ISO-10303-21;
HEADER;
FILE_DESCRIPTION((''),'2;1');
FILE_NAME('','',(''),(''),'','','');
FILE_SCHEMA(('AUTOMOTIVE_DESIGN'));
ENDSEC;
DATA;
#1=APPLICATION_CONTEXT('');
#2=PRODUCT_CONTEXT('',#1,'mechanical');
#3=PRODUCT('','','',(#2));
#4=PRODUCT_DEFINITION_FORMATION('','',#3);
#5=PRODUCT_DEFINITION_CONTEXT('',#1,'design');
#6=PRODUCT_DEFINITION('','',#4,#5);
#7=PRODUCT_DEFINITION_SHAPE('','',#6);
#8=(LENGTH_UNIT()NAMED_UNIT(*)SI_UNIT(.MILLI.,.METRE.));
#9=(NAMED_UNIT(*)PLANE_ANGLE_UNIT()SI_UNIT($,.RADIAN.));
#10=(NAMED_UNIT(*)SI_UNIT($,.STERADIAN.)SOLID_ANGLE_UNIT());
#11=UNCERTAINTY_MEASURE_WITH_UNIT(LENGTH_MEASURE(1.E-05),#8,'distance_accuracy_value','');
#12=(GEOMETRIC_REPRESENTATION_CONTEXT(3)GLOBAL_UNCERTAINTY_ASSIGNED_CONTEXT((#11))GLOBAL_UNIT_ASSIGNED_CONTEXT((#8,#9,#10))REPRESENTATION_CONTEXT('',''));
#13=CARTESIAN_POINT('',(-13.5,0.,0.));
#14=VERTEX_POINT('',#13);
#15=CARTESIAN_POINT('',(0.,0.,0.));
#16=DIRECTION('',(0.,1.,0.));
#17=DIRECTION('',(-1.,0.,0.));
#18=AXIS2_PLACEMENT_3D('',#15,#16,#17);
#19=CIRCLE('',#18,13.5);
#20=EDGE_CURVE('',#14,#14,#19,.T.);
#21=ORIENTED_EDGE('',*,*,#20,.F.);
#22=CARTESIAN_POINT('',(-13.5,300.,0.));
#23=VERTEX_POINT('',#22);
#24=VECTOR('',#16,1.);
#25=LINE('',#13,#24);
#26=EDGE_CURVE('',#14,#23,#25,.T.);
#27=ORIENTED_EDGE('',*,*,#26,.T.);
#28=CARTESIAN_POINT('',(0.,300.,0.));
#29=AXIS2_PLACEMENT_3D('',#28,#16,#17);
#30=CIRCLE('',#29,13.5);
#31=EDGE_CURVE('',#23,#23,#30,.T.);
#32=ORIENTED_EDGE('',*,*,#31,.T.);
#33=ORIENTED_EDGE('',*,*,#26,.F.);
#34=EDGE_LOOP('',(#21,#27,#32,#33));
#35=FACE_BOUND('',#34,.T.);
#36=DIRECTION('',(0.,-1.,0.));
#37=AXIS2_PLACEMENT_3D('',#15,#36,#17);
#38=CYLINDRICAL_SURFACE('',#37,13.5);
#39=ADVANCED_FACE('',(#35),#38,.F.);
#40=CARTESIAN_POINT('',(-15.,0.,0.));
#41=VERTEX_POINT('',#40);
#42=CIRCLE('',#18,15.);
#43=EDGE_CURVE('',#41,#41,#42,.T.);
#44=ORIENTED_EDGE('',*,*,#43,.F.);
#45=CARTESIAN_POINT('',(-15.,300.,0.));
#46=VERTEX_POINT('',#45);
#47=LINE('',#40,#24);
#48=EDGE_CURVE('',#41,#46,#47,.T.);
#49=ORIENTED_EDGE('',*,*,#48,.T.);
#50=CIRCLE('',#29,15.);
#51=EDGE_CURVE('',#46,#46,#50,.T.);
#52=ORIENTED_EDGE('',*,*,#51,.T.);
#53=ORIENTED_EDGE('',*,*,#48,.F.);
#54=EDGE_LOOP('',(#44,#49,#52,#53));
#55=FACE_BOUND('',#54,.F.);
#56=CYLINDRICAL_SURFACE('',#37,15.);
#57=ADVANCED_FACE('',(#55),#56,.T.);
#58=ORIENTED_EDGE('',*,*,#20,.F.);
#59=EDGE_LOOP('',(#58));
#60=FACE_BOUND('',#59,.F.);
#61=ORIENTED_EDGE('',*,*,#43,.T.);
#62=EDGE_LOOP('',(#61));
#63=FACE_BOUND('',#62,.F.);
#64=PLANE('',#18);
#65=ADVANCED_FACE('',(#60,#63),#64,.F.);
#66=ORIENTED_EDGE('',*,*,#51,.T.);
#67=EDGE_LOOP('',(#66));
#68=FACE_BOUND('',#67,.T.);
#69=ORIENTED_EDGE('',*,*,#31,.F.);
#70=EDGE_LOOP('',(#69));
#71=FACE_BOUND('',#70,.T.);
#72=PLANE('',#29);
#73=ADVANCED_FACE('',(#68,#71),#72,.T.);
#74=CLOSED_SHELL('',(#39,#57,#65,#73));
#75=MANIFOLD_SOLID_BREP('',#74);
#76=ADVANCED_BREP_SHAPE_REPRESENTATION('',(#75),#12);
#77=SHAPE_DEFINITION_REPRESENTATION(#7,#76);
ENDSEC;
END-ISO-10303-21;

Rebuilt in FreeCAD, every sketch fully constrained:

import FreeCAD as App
import Part
import Sketcher
from FreeCAD import Vector
Q = App.Units.Quantity

doc = App.newDocument("Part")
body = doc.addObject("PartDesign::Body", "Body")

sketch1 = body.newObject("Sketcher::SketchObject", "Sketch")
sketch1.AttachmentSupport = (doc.getObject("XZ_Plane"), [""])
sketch1.MapMode = "FlatFace"
sketch1.addGeometry([
    Part.Circle(Vector(0, 0, 0), Vector(0, 0, 1), 15),
    Part.Circle(Vector(0, 0, 0), Vector(0, 0, 1), 14),
], False)
sketch1.addConstraint([
    Sketcher.Constraint("Coincident", 0, 3, -1, 1),
    Sketcher.Constraint("Coincident", 1, 3, -1, 1),
    Sketcher.Constraint("Diameter", 0, Q("30 mm")),
    Sketcher.Constraint("Diameter", 1, Q("27 mm")),
])
pad1 = body.newObject("PartDesign::Pad", "Pad")
pad1.Profile = sketch1
pad1.Length = 300
pad1.Reversed = True

doc.recompute()
